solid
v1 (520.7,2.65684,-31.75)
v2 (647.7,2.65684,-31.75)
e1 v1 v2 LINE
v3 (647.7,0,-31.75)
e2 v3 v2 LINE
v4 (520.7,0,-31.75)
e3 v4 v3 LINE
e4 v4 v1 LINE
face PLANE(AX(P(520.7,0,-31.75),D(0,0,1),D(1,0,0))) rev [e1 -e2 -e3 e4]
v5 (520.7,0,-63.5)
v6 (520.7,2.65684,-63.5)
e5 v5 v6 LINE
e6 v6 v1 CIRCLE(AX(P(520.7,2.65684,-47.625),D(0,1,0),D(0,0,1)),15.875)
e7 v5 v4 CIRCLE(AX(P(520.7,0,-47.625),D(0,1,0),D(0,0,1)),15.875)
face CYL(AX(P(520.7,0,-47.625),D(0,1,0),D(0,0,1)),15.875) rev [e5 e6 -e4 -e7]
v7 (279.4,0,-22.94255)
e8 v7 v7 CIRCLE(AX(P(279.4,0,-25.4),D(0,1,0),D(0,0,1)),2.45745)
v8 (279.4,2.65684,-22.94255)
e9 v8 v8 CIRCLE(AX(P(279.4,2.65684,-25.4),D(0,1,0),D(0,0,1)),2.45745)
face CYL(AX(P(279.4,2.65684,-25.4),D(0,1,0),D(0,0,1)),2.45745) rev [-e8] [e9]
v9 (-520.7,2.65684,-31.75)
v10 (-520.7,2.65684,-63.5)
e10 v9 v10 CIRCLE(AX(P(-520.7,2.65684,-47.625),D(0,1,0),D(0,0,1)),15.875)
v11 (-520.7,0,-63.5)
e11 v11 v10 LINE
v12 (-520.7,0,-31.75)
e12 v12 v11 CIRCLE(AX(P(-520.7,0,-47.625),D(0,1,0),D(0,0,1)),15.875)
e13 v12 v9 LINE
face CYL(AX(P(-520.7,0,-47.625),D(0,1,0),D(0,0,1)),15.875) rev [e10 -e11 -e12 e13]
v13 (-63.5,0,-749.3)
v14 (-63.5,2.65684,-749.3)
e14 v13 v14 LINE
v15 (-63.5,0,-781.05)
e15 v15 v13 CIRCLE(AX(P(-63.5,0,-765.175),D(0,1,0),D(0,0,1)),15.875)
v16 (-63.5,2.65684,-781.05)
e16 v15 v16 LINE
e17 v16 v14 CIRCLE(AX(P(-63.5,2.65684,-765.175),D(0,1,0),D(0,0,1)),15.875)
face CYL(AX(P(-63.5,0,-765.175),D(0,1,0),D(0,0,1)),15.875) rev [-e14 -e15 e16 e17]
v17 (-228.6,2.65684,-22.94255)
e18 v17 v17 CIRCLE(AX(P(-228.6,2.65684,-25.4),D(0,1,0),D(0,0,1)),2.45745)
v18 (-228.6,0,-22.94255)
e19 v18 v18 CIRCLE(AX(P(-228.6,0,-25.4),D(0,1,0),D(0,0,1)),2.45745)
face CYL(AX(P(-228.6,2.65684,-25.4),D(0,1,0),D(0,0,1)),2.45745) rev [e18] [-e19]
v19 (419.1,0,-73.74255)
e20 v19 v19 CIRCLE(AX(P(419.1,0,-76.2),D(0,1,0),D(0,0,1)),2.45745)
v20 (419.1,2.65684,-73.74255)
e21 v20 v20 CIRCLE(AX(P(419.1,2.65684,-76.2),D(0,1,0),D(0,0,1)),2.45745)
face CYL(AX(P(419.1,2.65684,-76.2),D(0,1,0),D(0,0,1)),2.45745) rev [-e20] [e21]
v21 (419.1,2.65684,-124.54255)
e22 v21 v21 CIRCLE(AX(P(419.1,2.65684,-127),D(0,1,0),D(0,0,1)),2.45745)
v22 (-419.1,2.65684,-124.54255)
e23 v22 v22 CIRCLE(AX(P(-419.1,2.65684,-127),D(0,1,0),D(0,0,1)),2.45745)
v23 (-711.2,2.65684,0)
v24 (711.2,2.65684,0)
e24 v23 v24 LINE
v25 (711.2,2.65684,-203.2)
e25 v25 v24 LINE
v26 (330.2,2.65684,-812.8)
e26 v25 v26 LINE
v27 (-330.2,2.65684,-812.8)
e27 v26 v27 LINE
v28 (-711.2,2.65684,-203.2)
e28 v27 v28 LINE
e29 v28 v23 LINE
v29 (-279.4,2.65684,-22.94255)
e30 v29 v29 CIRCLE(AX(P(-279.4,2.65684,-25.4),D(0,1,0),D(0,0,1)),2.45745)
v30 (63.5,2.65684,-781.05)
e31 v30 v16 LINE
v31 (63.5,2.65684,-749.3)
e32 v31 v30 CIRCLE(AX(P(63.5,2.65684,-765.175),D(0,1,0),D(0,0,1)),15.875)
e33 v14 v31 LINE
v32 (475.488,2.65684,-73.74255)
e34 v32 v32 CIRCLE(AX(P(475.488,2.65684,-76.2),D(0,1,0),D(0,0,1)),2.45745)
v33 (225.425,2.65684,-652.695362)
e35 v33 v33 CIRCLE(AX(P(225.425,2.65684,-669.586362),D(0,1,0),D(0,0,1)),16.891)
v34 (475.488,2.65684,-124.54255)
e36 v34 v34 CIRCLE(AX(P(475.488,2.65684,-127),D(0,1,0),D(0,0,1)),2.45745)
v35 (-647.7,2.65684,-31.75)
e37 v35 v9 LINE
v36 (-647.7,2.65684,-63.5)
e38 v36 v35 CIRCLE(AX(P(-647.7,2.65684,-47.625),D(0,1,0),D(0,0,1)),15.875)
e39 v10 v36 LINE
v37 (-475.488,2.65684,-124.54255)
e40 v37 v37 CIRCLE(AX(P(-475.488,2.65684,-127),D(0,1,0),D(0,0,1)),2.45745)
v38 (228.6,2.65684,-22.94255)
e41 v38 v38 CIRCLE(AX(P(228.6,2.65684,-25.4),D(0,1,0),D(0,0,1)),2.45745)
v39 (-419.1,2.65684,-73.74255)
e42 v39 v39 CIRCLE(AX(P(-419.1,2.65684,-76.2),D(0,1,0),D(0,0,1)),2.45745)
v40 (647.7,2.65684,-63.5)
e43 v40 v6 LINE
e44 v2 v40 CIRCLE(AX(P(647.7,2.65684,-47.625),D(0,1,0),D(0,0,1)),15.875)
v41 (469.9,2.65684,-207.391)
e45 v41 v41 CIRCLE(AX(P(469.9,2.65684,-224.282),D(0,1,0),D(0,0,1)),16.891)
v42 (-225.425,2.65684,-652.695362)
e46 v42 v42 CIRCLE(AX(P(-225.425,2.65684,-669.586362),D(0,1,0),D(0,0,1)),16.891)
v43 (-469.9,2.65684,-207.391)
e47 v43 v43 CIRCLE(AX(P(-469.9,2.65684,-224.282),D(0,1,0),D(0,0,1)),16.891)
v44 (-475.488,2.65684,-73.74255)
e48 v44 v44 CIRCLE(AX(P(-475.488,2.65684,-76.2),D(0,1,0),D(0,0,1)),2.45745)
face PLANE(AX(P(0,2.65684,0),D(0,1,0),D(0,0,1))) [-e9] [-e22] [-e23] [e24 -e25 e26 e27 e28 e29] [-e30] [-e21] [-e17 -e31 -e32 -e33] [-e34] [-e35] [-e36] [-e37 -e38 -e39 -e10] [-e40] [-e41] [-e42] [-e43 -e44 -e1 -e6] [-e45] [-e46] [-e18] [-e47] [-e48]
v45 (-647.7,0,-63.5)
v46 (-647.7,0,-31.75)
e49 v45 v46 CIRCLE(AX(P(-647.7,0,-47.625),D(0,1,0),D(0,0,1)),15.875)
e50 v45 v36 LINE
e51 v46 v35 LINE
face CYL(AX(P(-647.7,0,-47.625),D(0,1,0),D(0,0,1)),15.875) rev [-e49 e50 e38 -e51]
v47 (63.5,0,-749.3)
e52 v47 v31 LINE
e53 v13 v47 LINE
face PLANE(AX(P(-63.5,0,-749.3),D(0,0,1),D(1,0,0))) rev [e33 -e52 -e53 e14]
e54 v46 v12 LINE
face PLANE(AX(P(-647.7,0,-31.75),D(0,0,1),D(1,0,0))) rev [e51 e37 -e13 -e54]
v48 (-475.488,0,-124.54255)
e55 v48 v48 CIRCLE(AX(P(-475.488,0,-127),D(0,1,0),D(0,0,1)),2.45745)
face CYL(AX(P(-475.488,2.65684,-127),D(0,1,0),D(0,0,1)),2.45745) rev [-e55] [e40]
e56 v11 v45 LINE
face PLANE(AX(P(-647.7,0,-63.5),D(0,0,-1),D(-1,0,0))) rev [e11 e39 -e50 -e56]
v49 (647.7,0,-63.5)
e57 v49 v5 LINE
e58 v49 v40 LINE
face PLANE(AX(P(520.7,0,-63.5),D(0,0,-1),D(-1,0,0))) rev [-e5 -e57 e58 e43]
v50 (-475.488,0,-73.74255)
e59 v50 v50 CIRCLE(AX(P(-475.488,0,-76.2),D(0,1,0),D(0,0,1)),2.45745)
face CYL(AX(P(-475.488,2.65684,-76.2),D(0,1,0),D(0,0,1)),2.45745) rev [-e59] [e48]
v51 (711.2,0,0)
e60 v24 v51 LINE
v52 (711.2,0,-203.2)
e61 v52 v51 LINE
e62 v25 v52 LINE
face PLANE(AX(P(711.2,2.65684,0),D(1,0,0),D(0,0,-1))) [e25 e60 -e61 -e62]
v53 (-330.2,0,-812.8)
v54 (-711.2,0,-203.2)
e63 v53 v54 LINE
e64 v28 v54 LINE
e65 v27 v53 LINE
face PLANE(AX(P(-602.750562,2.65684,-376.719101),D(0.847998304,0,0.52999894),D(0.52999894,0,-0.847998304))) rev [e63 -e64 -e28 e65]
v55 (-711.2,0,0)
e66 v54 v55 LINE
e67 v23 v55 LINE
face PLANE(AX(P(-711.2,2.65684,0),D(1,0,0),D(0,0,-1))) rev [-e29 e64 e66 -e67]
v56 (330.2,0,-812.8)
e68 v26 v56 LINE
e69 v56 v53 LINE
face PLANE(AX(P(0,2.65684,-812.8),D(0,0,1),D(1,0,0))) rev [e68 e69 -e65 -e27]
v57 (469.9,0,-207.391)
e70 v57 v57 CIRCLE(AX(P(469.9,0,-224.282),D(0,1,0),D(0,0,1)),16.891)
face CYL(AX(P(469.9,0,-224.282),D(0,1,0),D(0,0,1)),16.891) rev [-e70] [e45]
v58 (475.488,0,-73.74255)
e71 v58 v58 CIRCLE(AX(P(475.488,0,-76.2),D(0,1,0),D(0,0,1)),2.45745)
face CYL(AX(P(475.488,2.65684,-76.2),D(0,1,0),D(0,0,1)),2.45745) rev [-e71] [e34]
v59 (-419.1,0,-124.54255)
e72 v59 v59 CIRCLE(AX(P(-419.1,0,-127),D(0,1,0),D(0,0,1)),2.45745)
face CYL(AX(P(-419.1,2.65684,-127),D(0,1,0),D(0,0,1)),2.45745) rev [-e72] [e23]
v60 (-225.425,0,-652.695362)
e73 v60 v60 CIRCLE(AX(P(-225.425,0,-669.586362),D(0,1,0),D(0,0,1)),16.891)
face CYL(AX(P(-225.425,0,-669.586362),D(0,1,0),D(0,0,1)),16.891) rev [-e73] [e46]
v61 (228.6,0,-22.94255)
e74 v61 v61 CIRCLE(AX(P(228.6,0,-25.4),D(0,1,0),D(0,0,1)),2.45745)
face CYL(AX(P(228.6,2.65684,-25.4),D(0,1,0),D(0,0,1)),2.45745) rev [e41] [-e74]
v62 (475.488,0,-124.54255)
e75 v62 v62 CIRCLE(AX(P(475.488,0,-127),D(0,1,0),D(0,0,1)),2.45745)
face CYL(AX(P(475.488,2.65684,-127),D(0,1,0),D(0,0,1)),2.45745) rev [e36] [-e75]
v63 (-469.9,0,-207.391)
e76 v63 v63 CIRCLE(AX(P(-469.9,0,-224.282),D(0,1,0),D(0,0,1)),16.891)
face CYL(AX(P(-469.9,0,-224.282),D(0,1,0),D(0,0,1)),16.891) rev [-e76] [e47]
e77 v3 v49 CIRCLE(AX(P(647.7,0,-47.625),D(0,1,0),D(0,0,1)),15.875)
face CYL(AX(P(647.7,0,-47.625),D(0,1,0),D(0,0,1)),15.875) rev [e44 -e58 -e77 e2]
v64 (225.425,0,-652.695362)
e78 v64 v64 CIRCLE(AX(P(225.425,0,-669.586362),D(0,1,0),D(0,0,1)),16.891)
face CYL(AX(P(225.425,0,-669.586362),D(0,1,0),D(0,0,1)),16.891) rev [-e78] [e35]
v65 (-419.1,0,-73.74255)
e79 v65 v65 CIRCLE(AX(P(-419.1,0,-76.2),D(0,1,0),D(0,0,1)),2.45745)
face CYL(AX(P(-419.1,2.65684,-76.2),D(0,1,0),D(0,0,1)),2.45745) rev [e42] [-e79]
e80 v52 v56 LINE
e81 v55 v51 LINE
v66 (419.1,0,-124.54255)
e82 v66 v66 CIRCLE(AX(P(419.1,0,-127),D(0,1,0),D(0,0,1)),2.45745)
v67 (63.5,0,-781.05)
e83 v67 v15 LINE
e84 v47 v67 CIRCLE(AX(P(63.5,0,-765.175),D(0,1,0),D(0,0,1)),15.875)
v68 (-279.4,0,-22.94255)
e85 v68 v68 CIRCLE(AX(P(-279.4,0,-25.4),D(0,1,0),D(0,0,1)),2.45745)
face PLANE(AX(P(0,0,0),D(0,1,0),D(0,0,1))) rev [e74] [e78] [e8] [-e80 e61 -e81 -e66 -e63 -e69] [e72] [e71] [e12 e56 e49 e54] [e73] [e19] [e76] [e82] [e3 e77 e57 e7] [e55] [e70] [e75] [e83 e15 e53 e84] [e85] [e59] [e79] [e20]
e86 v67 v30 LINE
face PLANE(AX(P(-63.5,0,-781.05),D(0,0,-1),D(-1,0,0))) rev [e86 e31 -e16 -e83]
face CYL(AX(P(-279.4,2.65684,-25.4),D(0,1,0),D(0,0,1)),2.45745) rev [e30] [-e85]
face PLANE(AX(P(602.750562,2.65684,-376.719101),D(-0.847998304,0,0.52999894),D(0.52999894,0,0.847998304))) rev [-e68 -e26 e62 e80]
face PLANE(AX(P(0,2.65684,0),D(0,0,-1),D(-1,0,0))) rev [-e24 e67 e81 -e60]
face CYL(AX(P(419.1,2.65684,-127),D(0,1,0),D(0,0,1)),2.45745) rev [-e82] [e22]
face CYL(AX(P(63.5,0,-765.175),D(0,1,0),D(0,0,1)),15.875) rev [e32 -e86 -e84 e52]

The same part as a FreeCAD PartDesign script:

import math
import FreeCAD as App
import Part
import Sketcher
from FreeCAD import Vector
Q = App.Units.Quantity


def add_polygon(sketch, points):
    """Adds a closed chain of lines whose ends are joined by coincident constraints."""
    first, n = sketch.GeometryCount, len(points)
    for a, b in zip(points, points[1:] + points[:1]):
        sketch.addGeometry(Part.LineSegment(App.Vector(*a, 0), App.Vector(*b, 0)), False)
    for i in range(n):
        sketch.addConstraint(Sketcher.Constraint("Coincident", first + i, 2, first + (i + 1) % n, 1))

doc = App.newDocument("Part")
params = doc.addObject("Spreadsheet::Sheet", "Params")
for row, (alias, value) in enumerate([
    ("sketch1_width", "56 in"),
    ("sketch1_width2", "26 in"),
    ("sketch1_height", "8 in"),
    ("pad1_length", "0.1046 in"),
    ("sketch2_width", "5 in"),
    ("sketch2_radius", "0.625 in"),
    ("sketch3_diameter", "1.33 in"),
    ("hole_diameter", "0.1935 in"),
], start=1):
    params.set(f"A{row}", alias)
    params.set(f"B{row}", "=" + value)
    params.setAlias(f"B{row}", alias)

body = doc.addObject("PartDesign::Body", "Body")

# Sketch on XZ plane
sketch1 = body.newObject("Sketcher::SketchObject", "Sketch")
sketch1.AttachmentSupport = (doc.getObject("XZ_Plane"), [""])
sketch1.MapMode = "FlatFace"
add_polygon(sketch1, [(-711.2, -203.2), (-711.2, 0), (711.2, 0), (711.2, -203.2), (330.2, -812.8), (-330.2, -812.8)])  # lines 0-5
sketch1.addConstraint([
    Sketcher.Constraint("Vertical", 0),
    Sketcher.Constraint("Horizontal", 1),
    Sketcher.Constraint("Vertical", 2),
    Sketcher.Constraint("Horizontal", 4),
    Sketcher.Constraint("Symmetric", 0, 2, 1, 2, -1, 1),
    Sketcher.Constraint("Horizontal", 2, 2, 5, 2),
    Sketcher.Constraint("Equal", 3, 5),
    Sketcher.Constraint("DistanceX", 1, 1, 1, 2, Q("56 in")),
    Sketcher.Constraint("DistanceX", 4, 2, 4, 1, Q("26 in")),
    Sketcher.Constraint("DistanceY", 0, 1, 0, 2, Q("8 in")),
    Sketcher.Constraint("DistanceY", 3, 2, -1, 1, Q("32 in")),
])
sketch1.setExpression("Constraints[13]", "Params.sketch1_width")
sketch1.setExpression("Constraints[14]", "Params.sketch1_width2")
sketch1.setExpression("Constraints[15]", "Params.sketch1_height")
pad1 = body.newObject("PartDesign::Pad", "Pad")
pad1.Profile = sketch1
pad1.setExpression("Length", "Params.pad1_length")
pad1.Reversed = True

# Sketch on XZ plane
sketch2 = body.newObject("Sketcher::SketchObject", "Sketch001")
sketch2.AttachmentSupport = (doc.getObject("XZ_Plane"), [""])
sketch2.MapMode = "FlatFace"
sketch2.AttachmentOffset = App.Placement(Vector(0, 0, -0.1046 * 25.4), App.Rotation())
sketch2.addGeometry([
    Part.LineSegment(Vector(63.5, -781.05, 0), Vector(-63.5, -781.05, 0)),  # 0
    Part.ArcOfCircle(Part.Circle(Vector(-63.5, -765.175, 0), Vector(0, 0, 1), 15.875), math.radians(90), math.radians(270)),  # 1
    Part.LineSegment(Vector(-63.5, -749.3, 0), Vector(63.5, -749.3, 0)),  # 2
    Part.ArcOfCircle(Part.Circle(Vector(63.5, -765.175, 0), Vector(0, 0, 1), 15.875), math.radians(-90), math.radians(90)),  # 3
    Part.LineSegment(Vector(-520.7, -63.5, 0), Vector(-647.7, -63.5, 0)),  # 4
    Part.ArcOfCircle(Part.Circle(Vector(-647.7, -47.625, 0), Vector(0, 0, 1), 15.875), math.radians(90), math.radians(270)),  # 5
    Part.LineSegment(Vector(-647.7, -31.75, 0), Vector(-520.7, -31.75, 0)),  # 6
    Part.ArcOfCircle(Part.Circle(Vector(-520.7, -47.625, 0), Vector(0, 0, 1), 15.875), math.radians(-90), math.radians(90)),  # 7
    Part.LineSegment(Vector(647.7, -63.5, 0), Vector(520.7, -63.5, 0)),  # 8
    Part.ArcOfCircle(Part.Circle(Vector(520.7, -47.625, 0), Vector(0, 0, 1), 15.875), math.radians(90), math.radians(270)),  # 9
    Part.LineSegment(Vector(520.7, -31.75, 0), Vector(647.7, -31.75, 0)),  # 10
    Part.ArcOfCircle(Part.Circle(Vector(647.7, -47.625, 0), Vector(0, 0, 1), 15.875), math.radians(-90), math.radians(90)),  # 11
], False)
sketch2.addConstraint([
    Sketcher.Constraint("Tangent", 0, 2, 1, 2),
    Sketcher.Constraint("Tangent", 1, 1, 2, 1),
    Sketcher.Constraint("Tangent", 2, 2, 3, 2),
    Sketcher.Constraint("Tangent", 3, 1, 0, 1),
    Sketcher.Constraint("Tangent", 4, 2, 5, 2),
    Sketcher.Constraint("Tangent", 5, 1, 6, 1),
    Sketcher.Constraint("Tangent", 6, 2, 7, 2),
    Sketcher.Constraint("Tangent", 7, 1, 4, 1),
    Sketcher.Constraint("Tangent", 8, 2, 9, 2),
    Sketcher.Constraint("Tangent", 9, 1, 10, 1),
    Sketcher.Constraint("Tangent", 10, 2, 11, 2),
    Sketcher.Constraint("Tangent", 11, 1, 8, 1),
    Sketcher.Constraint("Horizontal", 0),
    Sketcher.Constraint("Horizontal", 2),
    Sketcher.Constraint("Horizontal", 4),
    Sketcher.Constraint("Horizontal", 6),
    Sketcher.Constraint("Horizontal", 8),
    Sketcher.Constraint("Horizontal", 10),
    Sketcher.Constraint("Equal", 3, 5),
    Sketcher.Constraint("Equal", 7, 9),
    Sketcher.Constraint("Symmetric", 7, 3, 9, 3, -2),
    Sketcher.Constraint("Equal", 2, 4),
    Sketcher.Constraint("Equal", 6, 8),
    Sketcher.Constraint("DistanceX", 0, 2, 0, 1, Q("5 in")),
    Sketcher.Constraint("Radius", 1, Q("0.625 in")),
    Sketcher.Constraint("DistanceX", 5, 3, 1, 3, Q("23 in")),
    Sketcher.Constraint("DistanceX", 3, 3, 9, 3, Q("18 in")),
    Sketcher.Constraint("DistanceY", 1, 1, 4, 2, Q("27 in")),
    Sketcher.Constraint("DistanceY", 1, 1, -1, 1, Q("29.5 in")),
])
sketch2.setExpression("Constraints[23]", "Params.sketch2_width")
sketch2.setExpression("Constraints[24]", "Params.sketch2_radius")
pocket1 = body.newObject("PartDesign::Pocket", "Pocket")
pocket1.Profile = sketch2
pocket1.Type = "ThroughAll"
pocket1.Reversed = True

# Sketch on XZ plane
sketch3 = body.newObject("Sketcher::SketchObject", "Sketch002")
sketch3.AttachmentSupport = (doc.getObject("XZ_Plane"), [""])
sketch3.MapMode = "FlatFace"
sketch3.AttachmentOffset = App.Placement(Vector(0, 0, -0.1046 * 25.4), App.Rotation())
sketch3.addGeometry([
    Part.Circle(Vector(-469.9, -224.282, 0), Vector(0, 0, 1), 16.891),
    Part.Circle(Vector(-225.425, -669.586362, 0), Vector(0, 0, 1), 16.891),
    Part.Circle(Vector(225.425, -669.586362, 0), Vector(0, 0, 1), 16.891),
    Part.Circle(Vector(469.9, -224.282, 0), Vector(0, 0, 1), 16.891),
], False)
sketch3.addConstraint([
    Sketcher.Constraint("Equal", 0, 1),
    Sketcher.Constraint("Equal", 1, 2),
    Sketcher.Constraint("Equal", 2, 3),
    Sketcher.Constraint("Symmetric", 1, 3, 2, 3, -2),
    Sketcher.Constraint("Symmetric", 0, 3, 3, 3, -2),
    Sketcher.Constraint("Diameter", 0, Q("1.33 in")),
    Sketcher.Constraint("DistanceX", 0, 3, 3, 3, Q("37 in")),
    Sketcher.Constraint("DistanceY", 0, 3, -1, 1, Q("8.83 in")),
    Sketcher.Constraint("DistanceX", 1, 3, 2, 3, Q("17.75 in")),
    Sketcher.Constraint("DistanceY", 1, 3, -1, 1, Q("669.586362 mm")),
])
sketch3.setExpression("Constraints[5]", "Params.sketch3_diameter")
pocket2 = body.newObject("PartDesign::Pocket", "Pocket001")
pocket2.Profile = sketch3
pocket2.Type = "ThroughAll"
pocket2.Reversed = True

# Sketch on XZ plane
sketch4 = body.newObject("Sketcher::SketchObject", "Sketch003")
sketch4.AttachmentSupport = (doc.getObject("XZ_Plane"), [""])
sketch4.MapMode = "FlatFace"
sketch4.AttachmentOffset = App.Placement(Vector(0, 0, -0.1046 * 25.4), App.Rotation())
sketch4.addGeometry([
    Part.Circle(Vector(228.6, -25.4, 0), Vector(0, 0, 1), 2.45745),  # 0
    Part.Circle(Vector(279.4, -25.4, 0), Vector(0, 0, 1), 2.45745),  # 1
    Part.Circle(Vector(419.1, -76.2, 0), Vector(0, 0, 1), 2.45745),  # 2
    Part.Circle(Vector(419.1, -127, 0), Vector(0, 0, 1), 2.45745),  # 3
    Part.Circle(Vector(475.488, -76.2, 0), Vector(0, 0, 1), 2.45745),  # 4
    Part.Circle(Vector(475.488, -127, 0), Vector(0, 0, 1), 2.45745),  # 5
    Part.Circle(Vector(-475.488, -127, 0), Vector(0, 0, 1), 2.45745),  # 6
    Part.Circle(Vector(-475.488, -76.2, 0), Vector(0, 0, 1), 2.45745),  # 7
    Part.Circle(Vector(-419.1, -76.2, 0), Vector(0, 0, 1), 2.45745),  # 8
    Part.Circle(Vector(-419.1, -127, 0), Vector(0, 0, 1), 2.45745),  # 9
    Part.Circle(Vector(-279.4, -25.4, 0), Vector(0, 0, 1), 2.45745),  # 10
    Part.Circle(Vector(-228.6, -25.4, 0), Vector(0, 0, 1), 2.45745),  # 11
], False)
sketch4.addConstraint([
    Sketcher.Constraint("Equal", 0, 1),
    Sketcher.Constraint("Equal", 1, 2),
    Sketcher.Constraint("Equal", 2, 3),
    Sketcher.Constraint("Equal", 3, 4),
    Sketcher.Constraint("Equal", 4, 5),
    Sketcher.Constraint("Equal", 5, 6),
    Sketcher.Constraint("Equal", 6, 7),
    Sketcher.Constraint("Equal", 7, 8),
    Sketcher.Constraint("Equal", 8, 9),
    Sketcher.Constraint("Equal", 9, 10),
    Sketcher.Constraint("Equal", 10, 11),
    Sketcher.Constraint("Symmetric", 5, 3, 6, 3, -2),
    Sketcher.Constraint("Symmetric", 4, 3, 7, 3, -2),
    Sketcher.Constraint("Symmetric", 2, 3, 8, 3, -2),
    Sketcher.Constraint("Symmetric", 3, 3, 9, 3, -2),
    Sketcher.Constraint("Symmetric", 1, 3, 10, 3, -2),
    Sketcher.Constraint("Symmetric", 0, 3, 11, 3, -2),
    Sketcher.Constraint("Horizontal", 0, 3, 1, 3),
    Sketcher.Constraint("Horizontal", 2, 3, 4, 3),
    Sketcher.Constraint("Horizontal", 3, 3, 5, 3),
    Sketcher.Constraint("Vertical", 2, 3, 3, 3),
    Sketcher.Constraint("Vertical", 4, 3, 5, 3),
    Sketcher.Constraint("DistanceX", -1, 1, 0, 3, Q("9 in")),
    Sketcher.Constraint("DistanceY", 0, 3, -1, 1, Q("1 in")),
    Sketcher.Constraint("DistanceX", -1, 1, 1, 3, Q("11 in")),
    Sketcher.Constraint("DistanceY", 2, 3, -1, 1, Q("3 in")),
    Sketcher.Constraint("DistanceY", 3, 3, -1, 1, Q("5 in")),
    Sketcher.Constraint("DistanceX", 8, 3, 2, 3, Q("33 in")),
    Sketcher.Constraint("Diameter", 0, Q("0.1935 in")),
    Sketcher.Constraint("DistanceX", -1, 1, 4, 3, Q("18.72 in")),
])
doc.recompute()
hole = body.newObject("PartDesign::Hole", "Hole")
hole.Profile = sketch4
hole.ThreadType = "None"
hole.setExpression("Diameter", "Params.hole_diameter")
hole.DepthType = "ThroughAll"
hole.Reversed = True

doc.recompute()
